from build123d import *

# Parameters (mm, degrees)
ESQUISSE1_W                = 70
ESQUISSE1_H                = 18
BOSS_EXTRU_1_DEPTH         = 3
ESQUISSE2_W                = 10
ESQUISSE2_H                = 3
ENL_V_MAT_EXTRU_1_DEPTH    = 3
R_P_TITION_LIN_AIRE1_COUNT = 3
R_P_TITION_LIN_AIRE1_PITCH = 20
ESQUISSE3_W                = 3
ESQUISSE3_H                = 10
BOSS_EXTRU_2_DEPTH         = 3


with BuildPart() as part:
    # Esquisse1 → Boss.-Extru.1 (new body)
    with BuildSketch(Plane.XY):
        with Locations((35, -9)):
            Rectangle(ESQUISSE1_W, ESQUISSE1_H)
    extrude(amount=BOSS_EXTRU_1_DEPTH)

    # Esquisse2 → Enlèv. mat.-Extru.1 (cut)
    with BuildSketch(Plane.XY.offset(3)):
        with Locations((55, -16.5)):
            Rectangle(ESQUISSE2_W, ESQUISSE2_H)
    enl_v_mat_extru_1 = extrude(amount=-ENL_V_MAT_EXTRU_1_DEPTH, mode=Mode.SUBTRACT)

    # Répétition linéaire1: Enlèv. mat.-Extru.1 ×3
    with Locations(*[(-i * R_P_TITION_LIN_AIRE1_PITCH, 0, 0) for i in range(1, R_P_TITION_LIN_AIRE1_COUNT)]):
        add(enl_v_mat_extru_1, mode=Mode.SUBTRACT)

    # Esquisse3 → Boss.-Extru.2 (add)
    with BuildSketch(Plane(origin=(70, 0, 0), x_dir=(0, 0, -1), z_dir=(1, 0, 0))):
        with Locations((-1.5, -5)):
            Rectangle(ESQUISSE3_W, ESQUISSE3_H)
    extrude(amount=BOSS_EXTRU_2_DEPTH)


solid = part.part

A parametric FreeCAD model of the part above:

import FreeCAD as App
import Part
import Sketcher


def add_polygon(sketch, points):
    """Adds a closed chain of lines whose ends are joined by coincident constraints."""
    first, n = sketch.GeometryCount, len(points)
    for a, b in zip(points, points[1:] + points[:1]):
        sketch.addGeometry(Part.LineSegment(App.Vector(*a, 0), App.Vector(*b, 0)), False)
    for i in range(n):
        sketch.addConstraint(Sketcher.Constraint("Coincident", first + i, 2, first + (i + 1) % n, 1))

doc = App.newDocument("Part")
body = doc.addObject("PartDesign::Body", "Body")

# Sketch on XY plane
sketch1 = body.newObject("Sketcher::SketchObject", "Sketch")
sketch1.AttachmentSupport = (doc.getObject("XY_Plane"), [""])
sketch1.MapMode = "FlatFace"
add_polygon(sketch1, [(0, 0), (0, -18), (70, -18), (70, 0)])  # lines 0-3
sketch1.addConstraint([
    Sketcher.Constraint("Vertical", 0),
    Sketcher.Constraint("Horizontal", 1),
    Sketcher.Constraint("Vertical", 2),
    Sketcher.Constraint("Horizontal", 3),
    Sketcher.Constraint("Coincident", 3, 2, -1, 1),
    Sketcher.Constraint("DistanceX", 1, 1, 1, 2, 70.0),
    Sketcher.Constraint("DistanceY", 0, 2, 0, 1, 18.0),
])
pad1 = body.newObject("PartDesign::Pad", "Pad")
pad1.Profile = sketch1
pad1.Length = 3

# Sketch on XY plane
sketch2 = body.newObject("Sketcher::SketchObject", "Sketch001")
sketch2.AttachmentSupport = (doc.getObject("XY_Plane"), [""])
sketch2.MapMode = "FlatFace"
sketch2.AttachmentOffset = App.Placement(App.Vector(0, 0, 3), App.Rotation())
add_polygon(sketch2, [(50, -15), (50, -18), (60, -18), (60, -15)])  # lines 0-3
sketch2.addConstraint([
    Sketcher.Constraint("Vertical", 0),
    Sketcher.Constraint("Horizontal", 1),
    Sketcher.Constraint("Vertical", 2),
    Sketcher.Constraint("Horizontal", 3),
    Sketcher.Constraint("DistanceX", 1, 1, 1, 2, 10.0),
    Sketcher.Constraint("DistanceY", 0, 2, 0, 1, 3.0),
    Sketcher.Constraint("DistanceX", -1, 1, 0, 2, 50.0),
    Sketcher.Constraint("DistanceY", 0, 2, -1, 1, 18.0),
])
pocket1 = body.newObject("PartDesign::Pocket", "Pocket")
pocket1.Profile = sketch2
pocket1.Length = 3
doc.recompute()

linearpattern = body.newObject("PartDesign::LinearPattern", "LinearPattern")
linearpattern.Originals = [pocket1]
linearpattern.Direction = (doc.getObject("X_Axis"), [""])
linearpattern.Mode = "offset"
linearpattern.Offset = 20
linearpattern.Occurrences = 3
linearpattern.Reversed = True
body.Tip = linearpattern

# Sketch on YZ plane
sketch3 = body.newObject("Sketcher::SketchObject", "Sketch002")
sketch3.AttachmentSupport = (doc.getObject("YZ_Plane"), [""])
sketch3.MapMode = "FlatFace"
sketch3.AttachmentOffset = App.Placement(App.Vector(0, 0, 70), App.Rotation())
add_polygon(sketch3, [(0, 3), (-10, 3), (-10, 0), (0, 0)])  # lines 0-3
sketch3.addConstraint([
    Sketcher.Constraint("Horizontal", 0),
    Sketcher.Constraint("Vertical", 1),
    Sketcher.Constraint("Horizontal", 2),
    Sketcher.Constraint("Vertical", 3),
    Sketcher.Constraint("Coincident", 2, 2, -1, 1),
    Sketcher.Constraint("DistanceX", 0, 2, 0, 1, 10.0),
    Sketcher.Constraint("DistanceY", 1, 2, 1, 1, 3.0),
])
pad2 = body.newObject("PartDesign::Pad", "Pad001")
pad2.Profile = sketch3
pad2.Length = 3

doc.recompute()
